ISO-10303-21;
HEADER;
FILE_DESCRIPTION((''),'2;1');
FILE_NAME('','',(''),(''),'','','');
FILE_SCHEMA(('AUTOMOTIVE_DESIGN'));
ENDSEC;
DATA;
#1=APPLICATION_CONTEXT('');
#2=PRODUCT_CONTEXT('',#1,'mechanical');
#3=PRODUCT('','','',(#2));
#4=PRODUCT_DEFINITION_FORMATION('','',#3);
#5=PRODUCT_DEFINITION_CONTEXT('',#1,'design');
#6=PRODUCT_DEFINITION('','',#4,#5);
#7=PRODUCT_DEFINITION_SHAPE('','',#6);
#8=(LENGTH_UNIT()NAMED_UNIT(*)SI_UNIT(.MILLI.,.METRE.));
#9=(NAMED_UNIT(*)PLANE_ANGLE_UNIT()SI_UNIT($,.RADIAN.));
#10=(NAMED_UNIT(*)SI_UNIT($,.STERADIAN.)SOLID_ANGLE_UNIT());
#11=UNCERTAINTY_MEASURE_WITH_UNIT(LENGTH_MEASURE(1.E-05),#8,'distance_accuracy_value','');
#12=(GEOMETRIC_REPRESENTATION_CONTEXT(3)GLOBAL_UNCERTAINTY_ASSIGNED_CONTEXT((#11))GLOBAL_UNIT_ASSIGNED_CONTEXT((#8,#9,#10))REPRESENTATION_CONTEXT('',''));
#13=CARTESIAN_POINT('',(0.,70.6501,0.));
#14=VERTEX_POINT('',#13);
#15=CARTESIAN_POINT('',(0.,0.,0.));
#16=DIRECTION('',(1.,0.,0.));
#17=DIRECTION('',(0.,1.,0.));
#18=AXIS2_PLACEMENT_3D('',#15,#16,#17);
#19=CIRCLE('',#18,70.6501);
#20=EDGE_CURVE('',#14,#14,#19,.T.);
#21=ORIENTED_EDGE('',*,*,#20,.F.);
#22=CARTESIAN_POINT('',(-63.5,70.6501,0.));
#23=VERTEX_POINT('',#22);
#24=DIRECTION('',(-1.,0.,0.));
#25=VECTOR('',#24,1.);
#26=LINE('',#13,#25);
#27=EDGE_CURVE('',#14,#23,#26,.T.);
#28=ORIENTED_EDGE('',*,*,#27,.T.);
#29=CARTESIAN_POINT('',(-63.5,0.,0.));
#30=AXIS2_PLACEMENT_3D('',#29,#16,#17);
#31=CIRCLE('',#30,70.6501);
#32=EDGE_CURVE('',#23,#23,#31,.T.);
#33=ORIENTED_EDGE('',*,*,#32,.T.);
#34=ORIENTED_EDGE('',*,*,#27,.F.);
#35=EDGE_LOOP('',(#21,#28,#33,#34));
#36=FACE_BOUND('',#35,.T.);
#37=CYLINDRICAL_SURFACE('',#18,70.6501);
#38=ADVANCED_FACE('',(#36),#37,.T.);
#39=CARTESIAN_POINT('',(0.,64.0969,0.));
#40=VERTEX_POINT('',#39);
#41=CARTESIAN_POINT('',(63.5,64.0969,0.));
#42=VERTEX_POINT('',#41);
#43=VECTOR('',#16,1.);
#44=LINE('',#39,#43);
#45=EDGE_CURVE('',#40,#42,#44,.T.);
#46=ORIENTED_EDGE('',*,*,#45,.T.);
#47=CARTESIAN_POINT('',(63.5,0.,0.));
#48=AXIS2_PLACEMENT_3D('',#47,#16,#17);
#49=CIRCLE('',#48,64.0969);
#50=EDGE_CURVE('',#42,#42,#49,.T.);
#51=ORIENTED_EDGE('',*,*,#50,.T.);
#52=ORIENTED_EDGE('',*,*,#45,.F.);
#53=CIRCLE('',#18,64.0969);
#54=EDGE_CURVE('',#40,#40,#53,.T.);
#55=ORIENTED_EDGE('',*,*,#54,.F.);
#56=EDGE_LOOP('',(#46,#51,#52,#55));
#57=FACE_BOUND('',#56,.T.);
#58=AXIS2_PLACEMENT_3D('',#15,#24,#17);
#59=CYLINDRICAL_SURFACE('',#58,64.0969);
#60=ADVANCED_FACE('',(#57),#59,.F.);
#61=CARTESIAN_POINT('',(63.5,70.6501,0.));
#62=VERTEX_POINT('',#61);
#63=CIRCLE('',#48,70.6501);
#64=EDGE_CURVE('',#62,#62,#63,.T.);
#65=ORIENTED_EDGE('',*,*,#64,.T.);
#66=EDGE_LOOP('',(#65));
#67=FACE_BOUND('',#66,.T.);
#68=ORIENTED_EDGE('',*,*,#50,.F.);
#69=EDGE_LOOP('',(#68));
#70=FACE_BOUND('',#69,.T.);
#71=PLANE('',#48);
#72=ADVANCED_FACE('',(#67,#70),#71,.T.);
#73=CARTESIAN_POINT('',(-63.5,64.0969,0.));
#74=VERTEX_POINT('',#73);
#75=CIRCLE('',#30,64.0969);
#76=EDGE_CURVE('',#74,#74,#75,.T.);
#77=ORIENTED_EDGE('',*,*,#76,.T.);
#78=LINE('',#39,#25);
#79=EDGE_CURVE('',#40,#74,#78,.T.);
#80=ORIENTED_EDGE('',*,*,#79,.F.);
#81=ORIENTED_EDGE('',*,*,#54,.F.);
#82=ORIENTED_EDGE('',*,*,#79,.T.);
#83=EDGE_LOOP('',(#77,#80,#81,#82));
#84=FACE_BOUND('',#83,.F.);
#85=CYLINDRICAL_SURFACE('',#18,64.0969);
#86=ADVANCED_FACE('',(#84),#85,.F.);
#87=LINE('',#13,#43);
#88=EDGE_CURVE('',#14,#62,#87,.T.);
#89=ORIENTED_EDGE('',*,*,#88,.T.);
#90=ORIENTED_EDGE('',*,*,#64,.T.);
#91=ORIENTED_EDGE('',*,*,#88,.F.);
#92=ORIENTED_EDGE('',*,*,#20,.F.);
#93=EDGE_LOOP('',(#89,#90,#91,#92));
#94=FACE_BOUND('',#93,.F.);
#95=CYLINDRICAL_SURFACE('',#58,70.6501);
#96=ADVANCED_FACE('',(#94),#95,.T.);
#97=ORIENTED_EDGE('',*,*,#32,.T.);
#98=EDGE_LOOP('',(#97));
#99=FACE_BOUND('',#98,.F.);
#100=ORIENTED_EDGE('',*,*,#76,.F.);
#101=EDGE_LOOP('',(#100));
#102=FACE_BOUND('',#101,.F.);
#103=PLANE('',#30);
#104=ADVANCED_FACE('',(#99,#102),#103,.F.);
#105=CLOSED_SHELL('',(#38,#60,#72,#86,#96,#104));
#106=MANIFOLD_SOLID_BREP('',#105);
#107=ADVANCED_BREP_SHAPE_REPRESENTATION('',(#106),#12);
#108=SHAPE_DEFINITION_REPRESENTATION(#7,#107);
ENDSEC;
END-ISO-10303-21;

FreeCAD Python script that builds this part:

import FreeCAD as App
import Part
import Sketcher
Q = App.Units.Quantity

doc = App.newDocument("Part")
body = doc.addObject("PartDesign::Body", "Body")

# Sketch on YZ plane
sketch1 = body.newObject("Sketcher::SketchObject", "Sketch")
sketch1.AttachmentSupport = (doc.getObject("YZ_Plane"), [""])
sketch1.MapMode = "FlatFace"
sketch1.addGeometry(Part.Circle(App.Vector(0, 0, 0), App.Vector(0, 0, 1), 71), False)
sketch1.addGeometry(Part.Circle(App.Vector(0, 0, 0), App.Vector(0, 0, 1), 64), False)
sketch1.addConstraint(Sketcher.Constraint("Coincident", 0, 3, -1, 1))
sketch1.addConstraint(Sketcher.Constraint("Coincident", 1, 3, -1, 1))
sketch1.addConstraint(Sketcher.Constraint("Diameter", 1, Q("5.047 in")))
sketch1.addConstraint(Sketcher.Constraint("Diameter", 0, Q("5.563 in")))
pad1 = body.newObject("PartDesign::Pad", "Pad")
pad1.Profile = sketch1
pad1.Length = Q("5 in")
pad1.Midplane = True

doc.recompute()
